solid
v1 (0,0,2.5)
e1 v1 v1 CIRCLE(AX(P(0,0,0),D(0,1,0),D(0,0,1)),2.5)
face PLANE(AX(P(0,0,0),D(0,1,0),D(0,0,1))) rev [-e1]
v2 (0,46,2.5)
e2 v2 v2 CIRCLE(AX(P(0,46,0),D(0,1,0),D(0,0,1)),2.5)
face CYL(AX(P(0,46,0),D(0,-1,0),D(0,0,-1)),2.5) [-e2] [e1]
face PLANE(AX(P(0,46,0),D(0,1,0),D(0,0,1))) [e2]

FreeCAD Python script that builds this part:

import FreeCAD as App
import Part
import Sketcher
from FreeCAD import Vector
Q = App.Units.Quantity

doc = App.newDocument("Part")
body = doc.addObject("PartDesign::Body", "Body")

# Sketch on XZ plane
sketch1 = doc.addObject("Sketcher::SketchObject", "Sketch")
body.addObject(sketch1)
sketch1.AttachmentSupport = (doc.XZ_Plane, [""])
sketch1.MapMode = "FlatFace"
sketch1.addGeometry(Part.Circle(Vector(0, 0, 0), Vector(0, 0, 1), 2.5), False)
sketch1.addConstraint(Sketcher.Constraint("Coincident", 0, 3, -1, 1))
sketch1.addConstraint(Sketcher.Constraint("Diameter", 0, Q("5 mm")))
pad1 = doc.addObject("PartDesign::Pad", "Pad")
body.addObject(pad1)
pad1.Profile = sketch1
pad1.Length = 46
pad1.Reversed = True

doc.recompute()
